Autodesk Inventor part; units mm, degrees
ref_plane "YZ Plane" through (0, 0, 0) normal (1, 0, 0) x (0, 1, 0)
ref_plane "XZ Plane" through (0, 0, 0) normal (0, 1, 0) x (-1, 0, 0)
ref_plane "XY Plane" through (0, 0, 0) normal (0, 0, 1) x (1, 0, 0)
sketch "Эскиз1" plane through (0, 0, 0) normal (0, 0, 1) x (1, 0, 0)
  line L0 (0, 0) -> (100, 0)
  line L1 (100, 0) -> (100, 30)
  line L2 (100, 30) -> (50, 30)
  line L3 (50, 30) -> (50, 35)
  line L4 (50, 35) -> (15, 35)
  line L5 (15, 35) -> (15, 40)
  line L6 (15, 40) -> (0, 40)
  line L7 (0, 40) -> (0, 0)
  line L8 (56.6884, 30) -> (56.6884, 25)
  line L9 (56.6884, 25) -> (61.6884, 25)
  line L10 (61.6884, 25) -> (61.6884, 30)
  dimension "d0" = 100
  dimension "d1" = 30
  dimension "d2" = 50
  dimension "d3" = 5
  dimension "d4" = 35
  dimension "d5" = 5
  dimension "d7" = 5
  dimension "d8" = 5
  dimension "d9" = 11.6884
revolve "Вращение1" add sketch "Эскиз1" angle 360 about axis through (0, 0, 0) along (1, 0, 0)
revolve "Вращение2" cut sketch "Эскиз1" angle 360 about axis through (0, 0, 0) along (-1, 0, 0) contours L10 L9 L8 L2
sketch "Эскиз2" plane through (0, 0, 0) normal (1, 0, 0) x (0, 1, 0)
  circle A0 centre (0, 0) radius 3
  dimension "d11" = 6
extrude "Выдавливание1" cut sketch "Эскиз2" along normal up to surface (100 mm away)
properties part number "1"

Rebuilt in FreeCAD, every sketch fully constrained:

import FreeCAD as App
import Part
import Sketcher
from FreeCAD import Vector
Q = App.Units.Quantity


def add_polygon(sketch, points):
    """Adds a closed chain of lines whose ends are joined by coincident constraints."""
    first, n = sketch.GeometryCount, len(points)
    for a, b in zip(points, points[1:] + points[:1]):
        sketch.addGeometry(Part.LineSegment(App.Vector(*a, 0), App.Vector(*b, 0)), False)
    for i in range(n):
        sketch.addConstraint(Sketcher.Constraint("Coincident", first + i, 2, first + (i + 1) % n, 1))

doc = App.newDocument("Part")
body = doc.addObject("PartDesign::Body", "Body")

# Sketch on XY plane
sketch1 = doc.addObject("Sketcher::SketchObject", "Sketch")
body.addObject(sketch1)
sketch1.AttachmentSupport = (doc.XY_Plane, [""])
sketch1.MapMode = "FlatFace"
add_polygon(sketch1, [(0, 40), (0, 0), (100, 0), (100, 30), (50, 30), (50, 35), (15, 35), (15, 40)])  # lines 0-7
sketch1.addConstraint([
    Sketcher.Constraint("Vertical", 0),
    Sketcher.Constraint("Horizontal", 1),
    Sketcher.Constraint("Vertical", 2),
    Sketcher.Constraint("Horizontal", 3),
    Sketcher.Constraint("Vertical", 4),
    Sketcher.Constraint("Horizontal", 5),
    Sketcher.Constraint("Vertical", 6),
    Sketcher.Constraint("Horizontal", 7),
    Sketcher.Constraint("Coincident", 0, 2, -1, 1),
    Sketcher.Constraint("Equal", 4, 6),
    Sketcher.Constraint("DistanceX", 1, 1, 1, 2, Q("100 mm")),
    Sketcher.Constraint("DistanceX", 3, 2, 3, 1, Q("50 mm")),
    Sketcher.Constraint("DistanceX", 5, 2, 5, 1, Q("35 mm")),
    Sketcher.Constraint("DistanceY", 2, 1, 2, 2, Q("30 mm")),
    Sketcher.Constraint("DistanceY", 4, 1, 4, 2, Q("5 mm")),
])
revolution = doc.addObject("PartDesign::Revolution", "Revolution")
body.addObject(revolution)
revolution.Profile = sketch1
revolution.ReferenceAxis = (sketch1, ["H_Axis"])
revolution.Angle = 360

# Sketch on XY plane
sketch2 = doc.addObject("Sketcher::SketchObject", "Sketch001")
body.addObject(sketch2)
sketch2.AttachmentSupport = (doc.XY_Plane, [""])
sketch2.MapMode = "FlatFace"
add_polygon(sketch2, [(62, 25), (62, 30), (57, 30), (57, 25)])  # lines 0-3
sketch2.addConstraint([
    Sketcher.Constraint("Vertical", 0),
    Sketcher.Constraint("Horizontal", 1),
    Sketcher.Constraint("Vertical", 2),
    Sketcher.Constraint("Horizontal", 3),
    Sketcher.Constraint("Equal", 3, 0),
    Sketcher.Constraint("DistanceX", 1, 2, 1, 1, Q("5 mm")),
    Sketcher.Constraint("DistanceY", -1, 1, 0, 2, Q("30 mm")),
    Sketcher.Constraint("DistanceX", -1, 1, 0, 2, Q("61.6884 mm")),
])
groove = doc.addObject("PartDesign::Groove", "Groove")
body.addObject(groove)
groove.Profile = sketch2
groove.ReferenceAxis = (sketch2, ["H_Axis"])
groove.Angle = 360

# Sketch on YZ plane
sketch3 = doc.addObject("Sketcher::SketchObject", "Sketch002")
body.addObject(sketch3)
sketch3.AttachmentSupport = (doc.YZ_Plane, [""])
sketch3.MapMode = "FlatFace"
sketch3.addGeometry(Part.Circle(Vector(0, 0, 0), Vector(0, 0, 1), 3), False)
sketch3.addConstraint([
    Sketcher.Constraint("Coincident", 0, 3, -1, 1),
    Sketcher.Constraint("Diameter", 0, Q("6 mm")),
])
pocket1 = doc.addObject("PartDesign::Pocket", "Pocket")
body.addObject(pocket1)
pocket1.Profile = sketch3
pocket1.Length = 100
pocket1.Reversed = True

doc.recompute()
